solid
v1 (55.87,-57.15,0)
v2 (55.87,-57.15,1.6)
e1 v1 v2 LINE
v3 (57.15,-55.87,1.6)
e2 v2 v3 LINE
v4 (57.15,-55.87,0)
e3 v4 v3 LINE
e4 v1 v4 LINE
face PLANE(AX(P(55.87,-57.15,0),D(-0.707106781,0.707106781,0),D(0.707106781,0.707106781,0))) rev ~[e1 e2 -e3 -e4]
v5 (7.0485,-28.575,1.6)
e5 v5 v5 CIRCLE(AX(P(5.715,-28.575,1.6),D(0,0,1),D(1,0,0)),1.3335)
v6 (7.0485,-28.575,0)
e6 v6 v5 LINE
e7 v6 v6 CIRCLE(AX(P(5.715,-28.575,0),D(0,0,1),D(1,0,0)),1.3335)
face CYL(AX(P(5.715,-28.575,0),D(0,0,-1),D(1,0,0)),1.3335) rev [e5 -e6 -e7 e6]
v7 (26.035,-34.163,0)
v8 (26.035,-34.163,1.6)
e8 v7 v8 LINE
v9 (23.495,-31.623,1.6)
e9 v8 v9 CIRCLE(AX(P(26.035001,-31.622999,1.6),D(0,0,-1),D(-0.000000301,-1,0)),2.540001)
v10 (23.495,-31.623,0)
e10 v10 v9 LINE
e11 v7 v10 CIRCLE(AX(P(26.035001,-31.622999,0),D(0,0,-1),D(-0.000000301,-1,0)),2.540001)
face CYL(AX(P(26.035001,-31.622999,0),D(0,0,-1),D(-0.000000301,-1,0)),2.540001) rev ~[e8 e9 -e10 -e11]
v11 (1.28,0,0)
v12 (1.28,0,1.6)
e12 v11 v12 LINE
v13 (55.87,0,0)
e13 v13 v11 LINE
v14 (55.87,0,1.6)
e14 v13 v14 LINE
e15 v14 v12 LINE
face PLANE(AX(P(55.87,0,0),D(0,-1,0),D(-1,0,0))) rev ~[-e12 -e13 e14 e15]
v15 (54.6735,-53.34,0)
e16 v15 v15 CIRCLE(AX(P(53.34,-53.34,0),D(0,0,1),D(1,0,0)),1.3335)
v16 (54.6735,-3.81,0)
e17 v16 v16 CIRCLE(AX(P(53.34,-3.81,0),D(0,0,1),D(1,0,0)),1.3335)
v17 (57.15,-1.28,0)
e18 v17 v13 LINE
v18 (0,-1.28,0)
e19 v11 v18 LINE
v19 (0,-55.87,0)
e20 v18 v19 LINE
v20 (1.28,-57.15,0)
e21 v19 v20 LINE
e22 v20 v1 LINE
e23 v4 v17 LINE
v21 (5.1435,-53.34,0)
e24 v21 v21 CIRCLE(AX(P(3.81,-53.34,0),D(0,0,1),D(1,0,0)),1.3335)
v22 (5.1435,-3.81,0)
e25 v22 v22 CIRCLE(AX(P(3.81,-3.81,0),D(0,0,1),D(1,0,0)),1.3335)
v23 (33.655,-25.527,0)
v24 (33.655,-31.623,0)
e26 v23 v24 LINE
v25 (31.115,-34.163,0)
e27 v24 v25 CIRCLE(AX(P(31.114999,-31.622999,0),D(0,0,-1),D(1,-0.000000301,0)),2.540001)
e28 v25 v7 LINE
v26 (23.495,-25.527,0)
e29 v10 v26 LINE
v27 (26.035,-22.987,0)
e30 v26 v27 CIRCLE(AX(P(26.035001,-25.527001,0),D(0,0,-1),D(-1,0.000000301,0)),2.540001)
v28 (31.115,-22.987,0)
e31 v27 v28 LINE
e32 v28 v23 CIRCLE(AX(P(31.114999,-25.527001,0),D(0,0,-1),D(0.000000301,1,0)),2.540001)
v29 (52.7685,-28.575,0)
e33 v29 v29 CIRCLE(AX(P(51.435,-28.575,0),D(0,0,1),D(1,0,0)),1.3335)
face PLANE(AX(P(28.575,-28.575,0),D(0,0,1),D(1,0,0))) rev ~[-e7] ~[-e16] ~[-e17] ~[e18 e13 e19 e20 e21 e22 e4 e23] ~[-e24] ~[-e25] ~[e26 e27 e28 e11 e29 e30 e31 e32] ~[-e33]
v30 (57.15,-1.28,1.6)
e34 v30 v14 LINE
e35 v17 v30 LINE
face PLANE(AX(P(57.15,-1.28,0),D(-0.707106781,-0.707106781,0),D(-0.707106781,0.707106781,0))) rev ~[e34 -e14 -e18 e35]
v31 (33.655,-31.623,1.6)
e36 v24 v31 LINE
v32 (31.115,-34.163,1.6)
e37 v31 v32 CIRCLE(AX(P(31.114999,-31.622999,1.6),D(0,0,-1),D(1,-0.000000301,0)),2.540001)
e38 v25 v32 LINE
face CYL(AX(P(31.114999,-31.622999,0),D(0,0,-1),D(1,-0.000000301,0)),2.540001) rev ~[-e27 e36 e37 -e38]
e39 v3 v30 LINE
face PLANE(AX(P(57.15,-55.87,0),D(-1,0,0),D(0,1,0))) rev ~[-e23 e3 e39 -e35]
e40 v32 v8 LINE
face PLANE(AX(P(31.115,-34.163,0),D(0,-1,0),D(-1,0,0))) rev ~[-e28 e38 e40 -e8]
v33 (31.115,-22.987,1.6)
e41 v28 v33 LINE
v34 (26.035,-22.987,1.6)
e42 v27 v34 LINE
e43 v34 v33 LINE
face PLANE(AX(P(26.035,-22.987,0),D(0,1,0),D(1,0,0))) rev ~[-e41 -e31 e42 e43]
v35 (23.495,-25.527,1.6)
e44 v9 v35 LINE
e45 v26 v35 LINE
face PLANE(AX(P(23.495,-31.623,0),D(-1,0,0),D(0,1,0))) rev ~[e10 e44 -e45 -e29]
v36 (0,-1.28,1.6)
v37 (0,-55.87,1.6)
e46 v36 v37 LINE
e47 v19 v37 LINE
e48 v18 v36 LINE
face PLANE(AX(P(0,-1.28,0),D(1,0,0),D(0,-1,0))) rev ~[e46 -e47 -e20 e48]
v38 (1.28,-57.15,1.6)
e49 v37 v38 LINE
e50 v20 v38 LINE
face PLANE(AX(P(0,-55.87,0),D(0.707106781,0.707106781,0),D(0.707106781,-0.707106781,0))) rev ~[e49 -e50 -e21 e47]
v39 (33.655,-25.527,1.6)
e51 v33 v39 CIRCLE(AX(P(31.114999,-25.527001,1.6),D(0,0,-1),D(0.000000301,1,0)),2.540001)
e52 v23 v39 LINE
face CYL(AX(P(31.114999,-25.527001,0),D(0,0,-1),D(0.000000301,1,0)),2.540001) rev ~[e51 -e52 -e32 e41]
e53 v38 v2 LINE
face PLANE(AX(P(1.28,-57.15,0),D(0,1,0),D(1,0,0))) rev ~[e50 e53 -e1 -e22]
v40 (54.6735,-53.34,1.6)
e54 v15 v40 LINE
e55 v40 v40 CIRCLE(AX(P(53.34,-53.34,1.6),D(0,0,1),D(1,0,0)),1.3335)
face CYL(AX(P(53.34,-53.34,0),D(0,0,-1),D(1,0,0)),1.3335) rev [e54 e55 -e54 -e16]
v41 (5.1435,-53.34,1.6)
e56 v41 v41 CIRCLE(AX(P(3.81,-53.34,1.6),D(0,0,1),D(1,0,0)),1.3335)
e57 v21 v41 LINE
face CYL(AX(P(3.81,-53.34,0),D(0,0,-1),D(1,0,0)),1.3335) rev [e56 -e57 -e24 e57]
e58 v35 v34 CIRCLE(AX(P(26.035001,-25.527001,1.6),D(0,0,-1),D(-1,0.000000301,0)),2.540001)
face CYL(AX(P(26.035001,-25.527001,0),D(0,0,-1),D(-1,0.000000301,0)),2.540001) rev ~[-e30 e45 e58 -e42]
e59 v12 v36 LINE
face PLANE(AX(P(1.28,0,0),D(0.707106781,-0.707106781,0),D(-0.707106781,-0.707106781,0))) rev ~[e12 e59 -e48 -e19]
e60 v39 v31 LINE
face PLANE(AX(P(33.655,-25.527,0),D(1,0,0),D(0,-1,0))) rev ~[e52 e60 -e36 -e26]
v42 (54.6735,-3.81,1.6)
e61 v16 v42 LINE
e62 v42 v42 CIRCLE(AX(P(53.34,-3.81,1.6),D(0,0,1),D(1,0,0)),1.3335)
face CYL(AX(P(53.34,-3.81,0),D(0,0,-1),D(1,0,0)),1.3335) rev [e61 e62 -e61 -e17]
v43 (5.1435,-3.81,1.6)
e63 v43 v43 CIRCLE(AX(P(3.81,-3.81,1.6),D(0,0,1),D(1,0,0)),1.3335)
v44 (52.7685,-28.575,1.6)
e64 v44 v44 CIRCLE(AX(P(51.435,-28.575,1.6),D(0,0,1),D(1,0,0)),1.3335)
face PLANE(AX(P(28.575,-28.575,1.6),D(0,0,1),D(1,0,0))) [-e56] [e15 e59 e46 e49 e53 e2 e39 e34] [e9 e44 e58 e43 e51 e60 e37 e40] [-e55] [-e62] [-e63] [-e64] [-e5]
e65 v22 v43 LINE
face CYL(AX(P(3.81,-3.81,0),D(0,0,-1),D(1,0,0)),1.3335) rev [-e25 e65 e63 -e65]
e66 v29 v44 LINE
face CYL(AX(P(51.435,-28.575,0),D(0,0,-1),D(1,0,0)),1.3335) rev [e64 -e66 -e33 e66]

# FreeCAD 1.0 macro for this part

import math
import FreeCAD as App
import Part
import Sketcher
Q = App.Units.Quantity


def add_polygon(sketch, points):
    """Adds a closed chain of lines whose ends are joined by coincident constraints."""
    first, n = sketch.GeometryCount, len(points)
    for a, b in zip(points, points[1:] + points[:1]):
        sketch.addGeometry(Part.LineSegment(App.Vector(*a, 0), App.Vector(*b, 0)), False)
    for i in range(n):
        sketch.addConstraint(Sketcher.Constraint("Coincident", first + i, 2, first + (i + 1) % n, 1))

doc = App.newDocument("Part")
body = doc.addObject("PartDesign::Body", "Body")

# Sketch on XY plane
sketch1 = doc.addObject("Sketcher::SketchObject", "Sketch")
body.addObject(sketch1)
sketch1.AttachmentSupport = (doc.XY_Plane, [""])
sketch1.MapMode = "FlatFace"
add_polygon(sketch1, [(55.9, 0), (1.3, 0), (0, -1.3), (0, -55.9), (1.3, -57.1), (55.9, -57.1), (57.1, -55.9), (57.1, -1.3)])  # lines 0-7
sketch1.addGeometry(Part.Circle(App.Vector(3.8, -53.3, 0), App.Vector(0, 0, 1), 1.3), False)  # 8
sketch1.addGeometry(Part.Circle(App.Vector(53.3, -53.3, 0), App.Vector(0, 0, 1), 1.3), False)  # 9
sketch1.addGeometry(Part.Circle(App.Vector(5.7, -28.6, 0), App.Vector(0, 0, 1), 1.3), False)  # 10
sketch1.addGeometry(Part.Circle(App.Vector(3.8, -3.8, 0), App.Vector(0, 0, 1), 1.3), False)  # 11
sketch1.addGeometry(Part.LineSegment(App.Vector(23.5, -31.6, 0), App.Vector(23.5, -25.5, 0)), False)  # 12
sketch1.addGeometry(Part.ArcOfCircle(Part.Circle(App.Vector(26, -25.5, 0), App.Vector(0, 0, 1), 2.5), math.radians(90), math.radians(180)), False)  # 13
sketch1.addGeometry(Part.LineSegment(App.Vector(26, -23, 0), App.Vector(31.1, -23, 0)), False)  # 14
sketch1.addGeometry(Part.ArcOfCircle(Part.Circle(App.Vector(31.1, -25.5, 0), App.Vector(0, 0, 1), 2.5), math.radians(0), math.radians(90)), False)  # 15
sketch1.addGeometry(Part.LineSegment(App.Vector(33.7, -25.5, 0), App.Vector(33.7, -31.6, 0)), False)  # 16
sketch1.addGeometry(Part.ArcOfCircle(Part.Circle(App.Vector(31.1, -31.6, 0), App.Vector(0, 0, 1), 2.5), math.radians(-90), math.radians(0)), False)  # 17
sketch1.addGeometry(Part.LineSegment(App.Vector(31.1, -34.2, 0), App.Vector(26, -34.2, 0)), False)  # 18
sketch1.addGeometry(Part.ArcOfCircle(Part.Circle(App.Vector(26, -31.6, 0), App.Vector(0, 0, 1), 2.5), math.radians(-180), math.radians(-90)), False)  # 19
sketch1.addGeometry(Part.Circle(App.Vector(51.4, -28.6, 0), App.Vector(0, 0, 1), 1.3), False)  # 20
sketch1.addGeometry(Part.Circle(App.Vector(53.3, -3.8, 0), App.Vector(0, 0, 1), 1.3), False)  # 21
sketch1.addConstraint([
    Sketcher.Constraint("Tangent", 12, 2, 13, 2),
    Sketcher.Constraint("Tangent", 13, 1, 14, 1),
    Sketcher.Constraint("Tangent", 14, 2, 15, 2),
    Sketcher.Constraint("Tangent", 15, 1, 16, 1),
    Sketcher.Constraint("Tangent", 16, 2, 17, 2),
    Sketcher.Constraint("Tangent", 17, 1, 18, 1),
    Sketcher.Constraint("Tangent", 18, 2, 19, 2),
    Sketcher.Constraint("Tangent", 19, 1, 12, 1),
    Sketcher.Constraint("Horizontal", 0),
    Sketcher.Constraint("Vertical", 2),
    Sketcher.Constraint("Horizontal", 4),
    Sketcher.Constraint("Vertical", 6),
    Sketcher.Constraint("Vertical", 12),
    Sketcher.Constraint("Horizontal", 14),
    Sketcher.Constraint("Vertical", 16),
    Sketcher.Constraint("Horizontal", 18),
    Sketcher.Constraint("Equal", 8, 9),
    Sketcher.Constraint("Equal", 9, 10),
    Sketcher.Constraint("Equal", 10, 11),
    Sketcher.Constraint("Equal", 13, 15),
    Sketcher.Constraint("Equal", 15, 17),
    Sketcher.Constraint("Equal", 17, 19),
    Sketcher.Constraint("Equal", 11, 20),
    Sketcher.Constraint("Equal", 20, 21),
    Sketcher.Constraint("PointOnObject", 0, 2, -1),
    Sketcher.Constraint("PointOnObject", 1, 2, -2),
    Sketcher.Constraint("Perpendicular", 1, 3),
    Sketcher.Constraint("Perpendicular", 3, 5),
    Sketcher.Constraint("Perpendicular", 5, 7),
    Sketcher.Constraint("Horizontal", 8, 3, 9, 3),
    Sketcher.Constraint("Horizontal", 10, 3, 20, 3),
    Sketcher.Constraint("Horizontal", 11, 3, 21, 3),
    Sketcher.Constraint("Horizontal", 2, 2, 5, 2),
    Sketcher.Constraint("Horizontal", 1, 2, 6, 2),
    Sketcher.Constraint("Vertical", 8, 3, 11, 3),
    Sketcher.Constraint("Vertical", 9, 3, 21, 3),
    Sketcher.Constraint("Vertical", 0, 2, 3, 2),
    Sketcher.Constraint("Vertical", 4, 2, 7, 2),
    Sketcher.Constraint("Equal", 4, 2),
    Sketcher.Constraint("Radius", 13, Q("0.1 in")),
    Sketcher.Constraint("Diameter", 8, Q("0.105 in")),
    Sketcher.Constraint("DistanceX", 14, 1, 14, 2, Q("0.2 in")),
    Sketcher.Constraint("DistanceX", 10, 3, 15, 3, Q("1 in")),
    Sketcher.Constraint("DistanceX", 13, 3, 20, 3, Q("1 in")),
    Sketcher.Constraint("DistanceY", 12, 1, 12, 2, Q("0.24 in")),
    Sketcher.Constraint("DistanceY", 8, 3, -1, 1, Q("2.1 in")),
    Sketcher.Constraint("DistanceX", -1, 1, 9, 3, Q("2.1 in")),
    Sketcher.Constraint("DistanceX", -1, 1, 8, 3, Q("0.15 in")),
    Sketcher.Constraint("DistanceY", 11, 3, -1, 1, Q("0.15 in")),
    Sketcher.Constraint("DistanceY", 3, 2, -1, 1, Q("2.25 in")),
    Sketcher.Constraint("DistanceY", 10, 3, 13, 3, Q("0.12 in")),
    Sketcher.Constraint("DistanceX", -1, 1, 10, 3, Q("0.225 in")),
    Sketcher.Constraint("DistanceY", 10, 3, -1, 1, Q("1.125 in")),
    Sketcher.Constraint("DistanceX", 0, 2, 0, 1, 54.59),
])
pad1 = doc.addObject("PartDesign::Pad", "Pad")
body.addObject(pad1)
pad1.Profile = sketch1
pad1.Length = 1.6

doc.recompute()
